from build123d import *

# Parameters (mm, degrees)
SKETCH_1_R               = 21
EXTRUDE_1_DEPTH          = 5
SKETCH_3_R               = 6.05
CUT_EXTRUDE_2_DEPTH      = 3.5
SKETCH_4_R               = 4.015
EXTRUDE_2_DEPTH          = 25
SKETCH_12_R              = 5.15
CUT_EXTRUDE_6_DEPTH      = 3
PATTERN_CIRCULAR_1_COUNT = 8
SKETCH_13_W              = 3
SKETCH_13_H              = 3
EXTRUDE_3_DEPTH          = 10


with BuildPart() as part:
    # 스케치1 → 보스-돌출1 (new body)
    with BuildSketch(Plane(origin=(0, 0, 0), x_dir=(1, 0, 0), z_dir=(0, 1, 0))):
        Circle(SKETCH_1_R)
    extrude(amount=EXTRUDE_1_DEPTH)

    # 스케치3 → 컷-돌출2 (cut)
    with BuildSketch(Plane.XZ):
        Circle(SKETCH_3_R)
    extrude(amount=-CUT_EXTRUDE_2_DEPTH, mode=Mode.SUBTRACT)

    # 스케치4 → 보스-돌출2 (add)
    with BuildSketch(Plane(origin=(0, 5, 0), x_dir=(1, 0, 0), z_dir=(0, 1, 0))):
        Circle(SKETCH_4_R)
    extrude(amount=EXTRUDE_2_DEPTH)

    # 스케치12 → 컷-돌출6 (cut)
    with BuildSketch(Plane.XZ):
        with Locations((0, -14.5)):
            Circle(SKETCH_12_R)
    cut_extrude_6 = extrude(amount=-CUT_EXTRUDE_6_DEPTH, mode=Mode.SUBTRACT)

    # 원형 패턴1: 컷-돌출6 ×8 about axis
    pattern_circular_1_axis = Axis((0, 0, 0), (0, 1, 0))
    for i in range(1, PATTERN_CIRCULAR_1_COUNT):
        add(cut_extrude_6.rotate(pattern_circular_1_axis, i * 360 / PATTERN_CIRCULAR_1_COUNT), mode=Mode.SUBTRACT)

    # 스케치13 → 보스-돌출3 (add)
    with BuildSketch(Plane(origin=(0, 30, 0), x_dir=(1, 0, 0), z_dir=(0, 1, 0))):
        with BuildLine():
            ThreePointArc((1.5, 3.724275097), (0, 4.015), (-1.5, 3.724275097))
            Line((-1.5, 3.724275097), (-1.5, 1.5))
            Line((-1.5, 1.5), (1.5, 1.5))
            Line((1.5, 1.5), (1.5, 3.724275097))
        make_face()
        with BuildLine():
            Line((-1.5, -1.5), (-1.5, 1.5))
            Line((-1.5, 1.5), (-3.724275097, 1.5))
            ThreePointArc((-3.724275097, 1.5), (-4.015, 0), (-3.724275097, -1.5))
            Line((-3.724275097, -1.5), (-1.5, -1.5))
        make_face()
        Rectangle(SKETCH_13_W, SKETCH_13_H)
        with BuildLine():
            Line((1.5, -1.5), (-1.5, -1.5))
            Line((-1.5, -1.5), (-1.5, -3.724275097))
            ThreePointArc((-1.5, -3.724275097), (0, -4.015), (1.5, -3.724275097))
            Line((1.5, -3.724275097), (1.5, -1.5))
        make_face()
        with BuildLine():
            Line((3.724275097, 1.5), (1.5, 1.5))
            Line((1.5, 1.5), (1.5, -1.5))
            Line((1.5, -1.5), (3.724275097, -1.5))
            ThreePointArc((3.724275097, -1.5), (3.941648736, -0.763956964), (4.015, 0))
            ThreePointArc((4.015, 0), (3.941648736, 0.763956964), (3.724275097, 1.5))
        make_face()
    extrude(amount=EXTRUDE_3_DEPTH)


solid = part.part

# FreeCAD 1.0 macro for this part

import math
import FreeCAD as App
import Part
import Sketcher
from FreeCAD import Vector

doc = App.newDocument("Part")
params = doc.addObject("Spreadsheet::Sheet", "Params")
for row, (alias, value) in enumerate([
    ("sketch1_diameter", "42 mm"),
    ("pad1_length", "5 mm"),
    ("sketch2_diameter", "12.1 mm"),
    ("pocket1_length", "3.5 mm"),
    ("sketch3_diameter", "8.03 mm"),
    ("pad2_length", "25 mm"),
    ("sketch4_diameter", "10.3 mm"),
    ("pocket2_length", "3 mm"),
    ("pad3_length", "10 mm"),
], start=1):
    params.set(f"A{row}", alias)
    params.set(f"B{row}", "=" + value)
    params.setAlias(f"B{row}", alias)

body = doc.addObject("PartDesign::Body", "Body")

# Sketch on XZ plane
sketch1 = body.newObject("Sketcher::SketchObject", "Sketch")
sketch1.AttachmentSupport = (doc.getObject("XZ_Plane"), [""])
sketch1.MapMode = "FlatFace"
sketch1.addGeometry(Part.Circle(Vector(0, 0, 0), Vector(0, 0, 1), 21), False)
sketch1.addConstraint([
    Sketcher.Constraint("Coincident", 0, 3, -1, 1),
    Sketcher.Constraint("Diameter", 0, 42.0),
])
sketch1.setExpression("Constraints[1]", "Params.sketch1_diameter")
pad1 = body.newObject("PartDesign::Pad", "Pad")
pad1.Profile = sketch1
pad1.setExpression("Length", "Params.pad1_length")
pad1.Reversed = True

# Sketch on XZ plane
sketch2 = body.newObject("Sketcher::SketchObject", "Sketch001")
sketch2.AttachmentSupport = (doc.getObject("XZ_Plane"), [""])
sketch2.MapMode = "FlatFace"
sketch2.addGeometry(Part.Circle(Vector(0, 0, 0), Vector(0, 0, 1), 6), False)
sketch2.addConstraint([
    Sketcher.Constraint("Coincident", 0, 3, -1, 1),
    Sketcher.Constraint("Diameter", 0, 12.1),
])
sketch2.setExpression("Constraints[1]", "Params.sketch2_diameter")
pocket1 = body.newObject("PartDesign::Pocket", "Pocket")
pocket1.Profile = sketch2
pocket1.setExpression("Length", "Params.pocket1_length")

# Sketch on XZ plane
sketch3 = body.newObject("Sketcher::SketchObject", "Sketch002")
sketch3.AttachmentSupport = (doc.getObject("XZ_Plane"), [""])
sketch3.MapMode = "FlatFace"
sketch3.AttachmentOffset = App.Placement(Vector(0, 0, -5), App.Rotation())
sketch3.addGeometry(Part.Circle(Vector(0, 0, 0), Vector(0, 0, 1), 4), False)
sketch3.addConstraint([
    Sketcher.Constraint("Coincident", 0, 3, -1, 1),
    Sketcher.Constraint("Diameter", 0, 8.03),
])
sketch3.setExpression("Constraints[1]", "Params.sketch3_diameter")
pad2 = body.newObject("PartDesign::Pad", "Pad001")
pad2.Profile = sketch3
pad2.setExpression("Length", "Params.pad2_length")
pad2.Reversed = True

# Sketch on XZ plane
sketch4 = body.newObject("Sketcher::SketchObject", "Sketch003")
sketch4.AttachmentSupport = (doc.getObject("XZ_Plane"), [""])
sketch4.MapMode = "FlatFace"
sketch4.addGeometry(Part.Circle(Vector(0, -14, 0), Vector(0, 0, 1), 5), False)
sketch4.addConstraint([
    Sketcher.Constraint("PointOnObject", 0, 3, -2),
    Sketcher.Constraint("Diameter", 0, 10.3),
    Sketcher.Constraint("DistanceY", 0, 3, -1, 1, 14.5),
])
sketch4.setExpression("Constraints[1]", "Params.sketch4_diameter")
pocket2 = body.newObject("PartDesign::Pocket", "Pocket001")
pocket2.Profile = sketch4
pocket2.setExpression("Length", "Params.pocket2_length")
doc.recompute()

polarpattern = body.newObject("PartDesign::PolarPattern", "PolarPattern")
polarpattern.Originals = [pocket2]
polarpattern.Axis = (doc.getObject("Y_Axis"), [""])
polarpattern.Angle = 360
polarpattern.Occurrences = 8
body.Tip = polarpattern

# Sketch on XZ plane
sketch5 = body.newObject("Sketcher::SketchObject", "Sketch004")
sketch5.AttachmentSupport = (doc.getObject("XZ_Plane"), [""])
sketch5.MapMode = "FlatFace"
sketch5.AttachmentOffset = App.Placement(Vector(0, 0, -30), App.Rotation())
sketch5.addGeometry([
    Part.ArcOfCircle(Part.Circle(Vector(0, 0, 0), Vector(0, 0, 1), 4), math.radians(-112), math.radians(-68)),  # 0
    Part.LineSegment(Vector(-1.5, -3.7, 0), Vector(-1.5, -1.5, 0)),  # 1
    Part.LineSegment(Vector(-1.5, -1.5, 0), Vector(-3.7, -1.5, 0)),  # 2
    Part.ArcOfCircle(Part.Circle(Vector(0, 0, 0), Vector(0, 0, 1), 4), math.radians(158), math.radians(202)),  # 3
    Part.LineSegment(Vector(-3.7, 1.5, 0), Vector(-1.5, 1.5, 0)),  # 4
    Part.LineSegment(Vector(-1.5, 1.5, 0), Vector(-1.5, 3.7, 0)),  # 5
    Part.ArcOfCircle(Part.Circle(Vector(0, 0, 0), Vector(0, 0, 1), 4), math.radians(68), math.radians(112)),  # 6
    Part.LineSegment(Vector(1.5, 3.7, 0), Vector(1.5, 1.5, 0)),  # 7
    Part.LineSegment(Vector(1.5, 1.5, 0), Vector(3.7, 1.5, 0)),  # 8
    Part.ArcOfCircle(Part.Circle(Vector(0, 0, 0), Vector(0, 0, 1), 4), math.radians(0), math.radians(22)),  # 9
    Part.ArcOfCircle(Part.Circle(Vector(0, 0, 0), Vector(0, 0, 1), 4), math.radians(-22), math.radians(0)),  # 10
    Part.LineSegment(Vector(3.7, -1.5, 0), Vector(1.5, -1.5, 0)),  # 11
    Part.LineSegment(Vector(1.5, -1.5, 0), Vector(1.5, -3.7, 0)),  # 12
], False)
sketch5.addConstraint([
    Sketcher.Constraint("Coincident", 0, 1, 1, 1),
    Sketcher.Constraint("Coincident", 1, 2, 2, 1),
    Sketcher.Constraint("Coincident", 2, 2, 3, 2),
    Sketcher.Constraint("Coincident", 3, 1, 4, 1),
    Sketcher.Constraint("Coincident", 4, 2, 5, 1),
    Sketcher.Constraint("Coincident", 5, 2, 6, 2),
    Sketcher.Constraint("Coincident", 6, 1, 7, 1),
    Sketcher.Constraint("Coincident", 7, 2, 8, 1),
    Sketcher.Constraint("Coincident", 8, 2, 9, 2),
    Sketcher.Constraint("Tangent", 9, 1, 10, 2),
    Sketcher.Constraint("Coincident", 10, 1, 11, 1),
    Sketcher.Constraint("Coincident", 11, 2, 12, 1),
    Sketcher.Constraint("Coincident", 12, 2, 0, 2),
    Sketcher.Constraint("Vertical", 1),
    Sketcher.Constraint("Horizontal", 2),
    Sketcher.Constraint("Horizontal", 4),
    Sketcher.Constraint("Vertical", 5),
    Sketcher.Constraint("Vertical", 7),
    Sketcher.Constraint("Horizontal", 8),
    Sketcher.Constraint("Horizontal", 11),
    Sketcher.Constraint("Vertical", 12),
    Sketcher.Constraint("Coincident", 0, 3, -1, 1),
    Sketcher.Constraint("Coincident", 3, 3, -1, 1),
    Sketcher.Constraint("Coincident", 6, 3, -1, 1),
    Sketcher.Constraint("Coincident", 9, 3, -1, 1),
    Sketcher.Constraint("Equal", 0, 3),
    Sketcher.Constraint("Equal", 3, 6),
    Sketcher.Constraint("Equal", 6, 9),
    Sketcher.Constraint("Equal", 9, 10),
    Sketcher.Constraint("Symmetric", 1, 2, 7, 2, -1, 1),
    Sketcher.Constraint("Symmetric", 4, 2, 11, 2, -1, 1),
    Sketcher.Constraint("Symmetric", 4, 2, 7, 2, -2),
    Sketcher.Constraint("PointOnObject", 9, 1, -1),
    Sketcher.Constraint("Equal", 11, 1),
    Sketcher.Constraint("Radius", 0, 4.015),
    Sketcher.Constraint("DistanceY", 2, 2, 3, 1, 3.0),
])
pad3 = body.newObject("PartDesign::Pad", "Pad002")
pad3.Profile = sketch5
pad3.setExpression("Length", "Params.pad3_length")
pad3.Reversed = True

doc.recompute()
